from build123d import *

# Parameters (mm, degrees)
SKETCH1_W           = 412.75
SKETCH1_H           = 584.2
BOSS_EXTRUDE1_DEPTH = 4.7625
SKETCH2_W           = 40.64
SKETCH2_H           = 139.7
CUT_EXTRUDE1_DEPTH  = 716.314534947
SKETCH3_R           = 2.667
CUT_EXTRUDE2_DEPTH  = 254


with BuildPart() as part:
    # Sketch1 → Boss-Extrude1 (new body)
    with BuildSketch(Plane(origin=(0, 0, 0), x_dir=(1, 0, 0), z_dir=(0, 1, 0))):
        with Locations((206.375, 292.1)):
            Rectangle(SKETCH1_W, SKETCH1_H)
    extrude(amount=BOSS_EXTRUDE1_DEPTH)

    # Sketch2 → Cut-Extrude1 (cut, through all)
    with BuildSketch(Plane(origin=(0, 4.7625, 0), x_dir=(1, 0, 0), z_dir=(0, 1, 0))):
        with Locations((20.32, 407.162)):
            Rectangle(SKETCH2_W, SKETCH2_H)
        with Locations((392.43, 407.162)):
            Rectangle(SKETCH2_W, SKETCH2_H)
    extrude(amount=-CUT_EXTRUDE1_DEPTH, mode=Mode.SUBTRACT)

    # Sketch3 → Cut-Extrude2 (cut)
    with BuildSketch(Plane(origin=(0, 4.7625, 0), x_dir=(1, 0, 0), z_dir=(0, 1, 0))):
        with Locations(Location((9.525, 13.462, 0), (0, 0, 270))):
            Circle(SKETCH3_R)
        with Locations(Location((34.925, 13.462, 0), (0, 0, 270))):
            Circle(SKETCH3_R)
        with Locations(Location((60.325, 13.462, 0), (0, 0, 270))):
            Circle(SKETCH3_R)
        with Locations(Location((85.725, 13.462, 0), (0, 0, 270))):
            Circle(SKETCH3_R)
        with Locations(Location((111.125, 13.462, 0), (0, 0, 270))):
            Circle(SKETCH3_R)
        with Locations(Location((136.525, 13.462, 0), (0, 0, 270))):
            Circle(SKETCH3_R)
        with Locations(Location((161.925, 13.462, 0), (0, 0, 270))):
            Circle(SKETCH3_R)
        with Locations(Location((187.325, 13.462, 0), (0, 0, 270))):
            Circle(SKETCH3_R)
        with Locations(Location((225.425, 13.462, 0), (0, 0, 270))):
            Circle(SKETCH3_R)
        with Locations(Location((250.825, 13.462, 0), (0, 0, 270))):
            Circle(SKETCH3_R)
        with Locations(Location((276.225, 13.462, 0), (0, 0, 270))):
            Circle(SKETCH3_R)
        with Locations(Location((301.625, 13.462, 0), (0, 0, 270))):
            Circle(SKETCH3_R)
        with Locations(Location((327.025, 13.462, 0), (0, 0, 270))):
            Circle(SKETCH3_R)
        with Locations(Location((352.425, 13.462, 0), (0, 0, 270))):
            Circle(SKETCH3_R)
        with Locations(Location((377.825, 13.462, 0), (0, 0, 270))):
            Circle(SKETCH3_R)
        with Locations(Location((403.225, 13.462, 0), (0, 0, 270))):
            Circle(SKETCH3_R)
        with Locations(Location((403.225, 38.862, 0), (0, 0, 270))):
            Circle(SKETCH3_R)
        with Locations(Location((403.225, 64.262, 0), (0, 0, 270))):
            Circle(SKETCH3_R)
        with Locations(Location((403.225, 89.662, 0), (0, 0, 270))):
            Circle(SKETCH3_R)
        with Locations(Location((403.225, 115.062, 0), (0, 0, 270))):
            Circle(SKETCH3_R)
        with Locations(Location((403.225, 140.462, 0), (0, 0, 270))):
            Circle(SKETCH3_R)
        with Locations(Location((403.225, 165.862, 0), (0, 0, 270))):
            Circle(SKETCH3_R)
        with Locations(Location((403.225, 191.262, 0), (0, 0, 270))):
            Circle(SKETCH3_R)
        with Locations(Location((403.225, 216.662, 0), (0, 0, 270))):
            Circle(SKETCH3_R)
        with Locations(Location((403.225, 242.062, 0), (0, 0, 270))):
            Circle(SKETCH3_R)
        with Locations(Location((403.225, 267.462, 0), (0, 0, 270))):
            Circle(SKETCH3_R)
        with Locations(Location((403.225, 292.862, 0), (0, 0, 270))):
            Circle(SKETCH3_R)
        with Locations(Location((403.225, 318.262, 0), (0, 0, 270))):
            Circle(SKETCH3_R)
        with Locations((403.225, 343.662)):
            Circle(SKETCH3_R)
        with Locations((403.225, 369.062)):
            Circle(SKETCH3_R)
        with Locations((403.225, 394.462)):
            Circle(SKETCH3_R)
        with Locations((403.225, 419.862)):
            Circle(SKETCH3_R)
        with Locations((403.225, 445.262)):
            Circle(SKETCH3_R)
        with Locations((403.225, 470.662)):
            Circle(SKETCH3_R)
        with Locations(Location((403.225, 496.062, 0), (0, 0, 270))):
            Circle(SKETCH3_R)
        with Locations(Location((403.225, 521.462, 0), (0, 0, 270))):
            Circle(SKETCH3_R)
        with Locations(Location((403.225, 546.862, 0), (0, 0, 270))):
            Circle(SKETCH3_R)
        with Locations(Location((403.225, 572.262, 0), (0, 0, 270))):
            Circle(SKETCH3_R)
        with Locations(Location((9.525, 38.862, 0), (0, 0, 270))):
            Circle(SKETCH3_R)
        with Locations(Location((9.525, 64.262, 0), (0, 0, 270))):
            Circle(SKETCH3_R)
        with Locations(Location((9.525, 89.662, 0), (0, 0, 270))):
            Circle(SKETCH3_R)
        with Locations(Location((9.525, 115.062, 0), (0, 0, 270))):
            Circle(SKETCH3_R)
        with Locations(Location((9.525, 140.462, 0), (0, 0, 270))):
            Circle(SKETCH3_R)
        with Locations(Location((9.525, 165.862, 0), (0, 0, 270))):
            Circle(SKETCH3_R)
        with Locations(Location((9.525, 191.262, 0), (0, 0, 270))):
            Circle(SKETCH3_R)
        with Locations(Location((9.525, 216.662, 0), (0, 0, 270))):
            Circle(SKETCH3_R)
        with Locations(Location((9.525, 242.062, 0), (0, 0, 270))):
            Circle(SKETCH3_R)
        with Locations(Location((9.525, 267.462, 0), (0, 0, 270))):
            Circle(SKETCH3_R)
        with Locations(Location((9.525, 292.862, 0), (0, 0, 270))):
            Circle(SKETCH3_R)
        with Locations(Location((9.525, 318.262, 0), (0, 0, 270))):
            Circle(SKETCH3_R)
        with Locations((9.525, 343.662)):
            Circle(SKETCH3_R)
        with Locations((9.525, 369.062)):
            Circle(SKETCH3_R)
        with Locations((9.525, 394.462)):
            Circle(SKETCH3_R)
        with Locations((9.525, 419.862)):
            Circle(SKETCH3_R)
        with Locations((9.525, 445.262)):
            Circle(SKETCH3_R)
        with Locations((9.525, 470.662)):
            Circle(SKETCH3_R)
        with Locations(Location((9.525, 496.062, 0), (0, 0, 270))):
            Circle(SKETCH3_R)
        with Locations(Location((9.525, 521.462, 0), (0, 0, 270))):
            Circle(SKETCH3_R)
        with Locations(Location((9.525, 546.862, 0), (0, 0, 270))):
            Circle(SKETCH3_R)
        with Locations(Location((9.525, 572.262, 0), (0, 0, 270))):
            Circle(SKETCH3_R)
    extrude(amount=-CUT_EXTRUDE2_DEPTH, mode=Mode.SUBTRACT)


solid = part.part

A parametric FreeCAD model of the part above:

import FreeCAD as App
import Part
import Sketcher
Q = App.Units.Quantity

doc = App.newDocument("Part")
params = doc.addObject("Spreadsheet::Sheet", "Params")
for row, (alias, value) in enumerate([
    ("sketch1_height", "23 in"),
    ("sketch1_width", "16.25 in"),
    ("pad1_length", "0.1875 in"),
    ("sketch2_width", "1.6 in"),
    ("sketch2_height", "5.5 in"),
    ("sketch3_diameter", "0.21 in"),
    ("pocket2_length", "10 in"),
], start=1):
    params.set(f"A{row}", alias)
    params.set(f"B{row}", "=" + value)
    params.setAlias(f"B{row}", alias)

body = doc.addObject("PartDesign::Body", "Body")

sketch1 = doc.addObject("Sketcher::SketchObject", "Sketch")
body.addObject(sketch1)
sketch1.AttachmentSupport = (doc.XZ_Plane, [""])
sketch1.MapMode = "FlatFace"
sketch1.addGeometry([
    Part.LineSegment(App.Vector(0, -584, 0), App.Vector(0, 0, 0)),
    Part.LineSegment(App.Vector(0, 0, 0), App.Vector(413, 0, 0)),
    Part.LineSegment(App.Vector(413, 0, 0), App.Vector(413, -584, 0)),
    Part.LineSegment(App.Vector(413, -584, 0), App.Vector(0, -584, 0)),
], False)
sketch1.addConstraint([
    Sketcher.Constraint("Coincident", 0, 2, 1, 1),
    Sketcher.Constraint("Coincident", 1, 2, 2, 1),
    Sketcher.Constraint("Coincident", 2, 2, 3, 1),
    Sketcher.Constraint("Coincident", 3, 2, 0, 1),
    Sketcher.Constraint("Vertical", 0),
    Sketcher.Constraint("Horizontal", 1),
    Sketcher.Constraint("Vertical", 2),
    Sketcher.Constraint("Horizontal", 3),
    Sketcher.Constraint("Coincident", 0, 2, -1, 1),
    Sketcher.Constraint("DistanceY", 0, 1, 0, 2, Q("23 in")),
    Sketcher.Constraint("DistanceX", 1, 1, 1, 2, Q("16.25 in")),
])
sketch1.setExpression("Constraints[9]", "Params.sketch1_height")
sketch1.setExpression("Constraints[10]", "Params.sketch1_width")
pad1 = doc.addObject("PartDesign::Pad", "Pad")
body.addObject(pad1)
pad1.Profile = sketch1
pad1.setExpression("Length", "Params.pad1_length")
pad1.Reversed = True

sketch2 = doc.addObject("Sketcher::SketchObject", "Sketch001")
body.addObject(sketch2)
sketch2.AttachmentSupport = (doc.XZ_Plane, [""])
sketch2.MapMode = "FlatFace"
sketch2.AttachmentOffset = App.Placement(App.Vector(0, 0, -0.1875 * 25.4), App.Rotation())
sketch2.addGeometry([
    Part.LineSegment(App.Vector(0, -477, 0), App.Vector(0, -337, 0)),
    Part.LineSegment(App.Vector(0, -337, 0), App.Vector(41, -337, 0)),
    Part.LineSegment(App.Vector(41, -337, 0), App.Vector(41, -477, 0)),
    Part.LineSegment(App.Vector(41, -477, 0), App.Vector(0, -477, 0)),
    Part.LineSegment(App.Vector(372, -477, 0), App.Vector(372, -337, 0)),
    Part.LineSegment(App.Vector(372, -337, 0), App.Vector(413, -337, 0)),
    Part.LineSegment(App.Vector(413, -337, 0), App.Vector(413, -477, 0)),
    Part.LineSegment(App.Vector(413, -477, 0), App.Vector(372, -477, 0)),
], False)
sketch2.addConstraint([
    Sketcher.Constraint("Coincident", 0, 2, 1, 1),
    Sketcher.Constraint("Coincident", 1, 2, 2, 1),
    Sketcher.Constraint("Coincident", 2, 2, 3, 1),
    Sketcher.Constraint("Coincident", 3, 2, 0, 1),
    Sketcher.Constraint("Coincident", 4, 2, 5, 1),
    Sketcher.Constraint("Coincident", 5, 2, 6, 1),
    Sketcher.Constraint("Coincident", 6, 2, 7, 1),
    Sketcher.Constraint("Coincident", 7, 2, 4, 1),
    Sketcher.Constraint("Vertical", 0),
    Sketcher.Constraint("Horizontal", 1),
    Sketcher.Constraint("Vertical", 2),
    Sketcher.Constraint("Horizontal", 3),
    Sketcher.Constraint("Vertical", 4),
    Sketcher.Constraint("Horizontal", 5),
    Sketcher.Constraint("Vertical", 6),
    Sketcher.Constraint("Horizontal", 7),
    Sketcher.Constraint("PointOnObject", 0, 2, -2),
    Sketcher.Constraint("Horizontal", 1, 2, 4, 2),
    Sketcher.Constraint("Horizontal", 3, 2, 6, 2),
    Sketcher.Constraint("Equal", 3, 5),
    Sketcher.Constraint("DistanceX", 1, 1, 1, 2, Q("1.6 in")),
    Sketcher.Constraint("DistanceY", 0, 1, 0, 2, Q("5.5 in")),
    Sketcher.Constraint("DistanceY", 0, 2, -1, 1, Q("13.28 in")),
    Sketcher.Constraint("DistanceX", -1, 1, 4, 2, Q("14.65 in")),
])
sketch2.setExpression("Constraints[20]", "Params.sketch2_width")
sketch2.setExpression("Constraints[21]", "Params.sketch2_height")
pocket1 = doc.addObject("PartDesign::Pocket", "Pocket")
body.addObject(pocket1)
pocket1.Profile = sketch2
pocket1.Type = "ThroughAll"
pocket1.Reversed = True

sketch3 = doc.addObject("Sketcher::SketchObject", "Sketch002")
body.addObject(sketch3)
sketch3.AttachmentSupport = (doc.XZ_Plane, [""])
sketch3.MapMode = "FlatFace"
sketch3.AttachmentOffset = App.Placement(App.Vector(0, 0, -0.1875 * 25.4), App.Rotation())
sketch3.addGeometry([
    Part.Circle(App.Vector(9.5, -13.5, 0), App.Vector(0, 0, 1), 2.7),
    Part.Circle(App.Vector(34.9, -13.5, 0), App.Vector(0, 0, 1), 2.7),
    Part.Circle(App.Vector(60.3, -13.5, 0), App.Vector(0, 0, 1), 2.7),
    Part.Circle(App.Vector(85.7, -13.5, 0), App.Vector(0, 0, 1), 2.7),
    Part.Circle(App.Vector(111.1, -13.5, 0), App.Vector(0, 0, 1), 2.7),
    Part.Circle(App.Vector(136.5, -13.5, 0), App.Vector(0, 0, 1), 2.7),
    Part.Circle(App.Vector(161.9, -13.5, 0), App.Vector(0, 0, 1), 2.7),
    Part.Circle(App.Vector(187.3, -13.5, 0), App.Vector(0, 0, 1), 2.7),
    Part.Circle(App.Vector(225.4, -13.5, 0), App.Vector(0, 0, 1), 2.7),
    Part.Circle(App.Vector(250.8, -13.5, 0), App.Vector(0, 0, 1), 2.7),
    Part.Circle(App.Vector(276.2, -13.5, 0), App.Vector(0, 0, 1), 2.7),
    Part.Circle(App.Vector(301.6, -13.5, 0), App.Vector(0, 0, 1), 2.7),
    Part.Circle(App.Vector(327, -13.5, 0), App.Vector(0, 0, 1), 2.7),
    Part.Circle(App.Vector(352.4, -13.5, 0), App.Vector(0, 0, 1), 2.7),
    Part.Circle(App.Vector(377.8, -13.5, 0), App.Vector(0, 0, 1), 2.7),
    Part.Circle(App.Vector(403.2, -13.5, 0), App.Vector(0, 0, 1), 2.7),
    Part.Circle(App.Vector(403.2, -38.9, 0), App.Vector(0, 0, 1), 2.7),
    Part.Circle(App.Vector(403.2, -64.3, 0), App.Vector(0, 0, 1), 2.7),
    Part.Circle(App.Vector(403.2, -89.7, 0), App.Vector(0, 0, 1), 2.7),
    Part.Circle(App.Vector(403.2, -115.1, 0), App.Vector(0, 0, 1), 2.7),
    Part.Circle(App.Vector(403.2, -140.5, 0), App.Vector(0, 0, 1), 2.7),
    Part.Circle(App.Vector(403.2, -165.9, 0), App.Vector(0, 0, 1), 2.7),
    Part.Circle(App.Vector(403.2, -191.3, 0), App.Vector(0, 0, 1), 2.7),
    Part.Circle(App.Vector(403.2, -216.7, 0), App.Vector(0, 0, 1), 2.7),
    Part.Circle(App.Vector(403.2, -242.1, 0), App.Vector(0, 0, 1), 2.7),
    Part.Circle(App.Vector(403.2, -267.5, 0), App.Vector(0, 0, 1), 2.7),
    Part.Circle(App.Vector(403.2, -292.9, 0), App.Vector(0, 0, 1), 2.7),
    Part.Circle(App.Vector(403.2, -318.3, 0), App.Vector(0, 0, 1), 2.7),
    Part.Circle(App.Vector(403.2, -343.7, 0), App.Vector(0, 0, 1), 2.7),
    Part.Circle(App.Vector(403.2, -369.1, 0), App.Vector(0, 0, 1), 2.7),
    Part.Circle(App.Vector(403.2, -394.5, 0), App.Vector(0, 0, 1), 2.7),
    Part.Circle(App.Vector(403.2, -419.9, 0), App.Vector(0, 0, 1), 2.7),
    Part.Circle(App.Vector(403.2, -445.3, 0), App.Vector(0, 0, 1), 2.7),
    Part.Circle(App.Vector(403.2, -470.7, 0), App.Vector(0, 0, 1), 2.7),
    Part.Circle(App.Vector(403.2, -496.1, 0), App.Vector(0, 0, 1), 2.7),
    Part.Circle(App.Vector(403.2, -521.5, 0), App.Vector(0, 0, 1), 2.7),
    Part.Circle(App.Vector(403.2, -546.9, 0), App.Vector(0, 0, 1), 2.7),
    Part.Circle(App.Vector(403.2, -572.3, 0), App.Vector(0, 0, 1), 2.7),
    Part.Circle(App.Vector(9.5, -38.9, 0), App.Vector(0, 0, 1), 2.7),
    Part.Circle(App.Vector(9.5, -64.3, 0), App.Vector(0, 0, 1), 2.7),
    Part.Circle(App.Vector(9.5, -89.7, 0), App.Vector(0, 0, 1), 2.7),
    Part.Circle(App.Vector(9.5, -115.1, 0), App.Vector(0, 0, 1), 2.7),
    Part.Circle(App.Vector(9.5, -140.5, 0), App.Vector(0, 0, 1), 2.7),
    Part.Circle(App.Vector(9.5, -165.9, 0), App.Vector(0, 0, 1), 2.7),
    Part.Circle(App.Vector(9.5, -191.3, 0), App.Vector(0, 0, 1), 2.7),
    Part.Circle(App.Vector(9.5, -216.7, 0), App.Vector(0, 0, 1), 2.7),
    Part.Circle(App.Vector(9.5, -242.1, 0), App.Vector(0, 0, 1), 2.7),
    Part.Circle(App.Vector(9.5, -267.5, 0), App.Vector(0, 0, 1), 2.7),
    Part.Circle(App.Vector(9.5, -292.9, 0), App.Vector(0, 0, 1), 2.7),
    Part.Circle(App.Vector(9.5, -318.3, 0), App.Vector(0, 0, 1), 2.7),
    Part.Circle(App.Vector(9.5, -343.7, 0), App.Vector(0, 0, 1), 2.7),
    Part.Circle(App.Vector(9.5, -369.1, 0), App.Vector(0, 0, 1), 2.7),
    Part.Circle(App.Vector(9.5, -394.5, 0), App.Vector(0, 0, 1), 2.7),
    Part.Circle(App.Vector(9.5, -419.9, 0), App.Vector(0, 0, 1), 2.7),
    Part.Circle(App.Vector(9.5, -445.3, 0), App.Vector(0, 0, 1), 2.7),
    Part.Circle(App.Vector(9.5, -470.7, 0), App.Vector(0, 0, 1), 2.7),
    Part.Circle(App.Vector(9.5, -496.1, 0), App.Vector(0, 0, 1), 2.7),
    Part.Circle(App.Vector(9.5, -521.5, 0), App.Vector(0, 0, 1), 2.7),
    Part.Circle(App.Vector(9.5, -546.9, 0), App.Vector(0, 0, 1), 2.7),
    Part.Circle(App.Vector(9.5, -572.3, 0), App.Vector(0, 0, 1), 2.7),
], False)
sketch3.addConstraint([
    Sketcher.Constraint("Equal", 0, 1),
    Sketcher.Constraint("Equal", 1, 2),
    Sketcher.Constraint("Equal", 2, 3),
    Sketcher.Constraint("Equal", 3, 4),
    Sketcher.Constraint("Equal", 4, 5),
    Sketcher.Constraint("Equal", 5, 6),
    Sketcher.Constraint("Equal", 6, 7),
    Sketcher.Constraint("Equal", 7, 8),
    Sketcher.Constraint("Equal", 8, 9),
    Sketcher.Constraint("Equal", 9, 10),
    Sketcher.Constraint("Equal", 10, 11),
    Sketcher.Constraint("Equal", 11, 12),
    Sketcher.Constraint("Equal", 12, 13),
    Sketcher.Constraint("Equal", 13, 14),
    Sketcher.Constraint("Equal", 14, 15),
    Sketcher.Constraint("Equal", 15, 16),
    Sketcher.Constraint("Equal", 16, 17),
    Sketcher.Constraint("Equal", 17, 18),
    Sketcher.Constraint("Equal", 18, 19),
    Sketcher.Constraint("Equal", 19, 20),
    Sketcher.Constraint("Equal", 20, 21),
    Sketcher.Constraint("Equal", 21, 22),
    Sketcher.Constraint("Equal", 22, 23),
    Sketcher.Constraint("Equal", 23, 24),
    Sketcher.Constraint("Equal", 24, 25),
    Sketcher.Constraint("Equal", 25, 26),
    Sketcher.Constraint("Equal", 26, 27),
    Sketcher.Constraint("Equal", 27, 28),
    Sketcher.Constraint("Equal", 28, 29),
    Sketcher.Constraint("Equal", 29, 30),
    Sketcher.Constraint("Equal", 30, 31),
    Sketcher.Constraint("Equal", 31, 32),
    Sketcher.Constraint("Equal", 32, 33),
    Sketcher.Constraint("Equal", 33, 34),
    Sketcher.Constraint("Equal", 34, 35),
    Sketcher.Constraint("Equal", 35, 36),
    Sketcher.Constraint("Equal", 36, 37),
    Sketcher.Constraint("Equal", 37, 38),
    Sketcher.Constraint("Equal", 38, 39),
    Sketcher.Constraint("Equal", 39, 40),
    Sketcher.Constraint("Equal", 40, 41),
    Sketcher.Constraint("Equal", 41, 42),
    Sketcher.Constraint("Equal", 42, 43),
    Sketcher.Constraint("Equal", 43, 44),
    Sketcher.Constraint("Equal", 44, 45),
    Sketcher.Constraint("Equal", 45, 46),
    Sketcher.Constraint("Equal", 46, 47),
    Sketcher.Constraint("Equal", 47, 48),
    Sketcher.Constraint("Equal", 48, 49),
    Sketcher.Constraint("Equal", 49, 50),
    Sketcher.Constraint("Equal", 50, 51),
    Sketcher.Constraint("Equal", 51, 52),
    Sketcher.Constraint("Equal", 52, 53),
    Sketcher.Constraint("Equal", 53, 54),
    Sketcher.Constraint("Equal", 54, 55),
    Sketcher.Constraint("Equal", 55, 56),
    Sketcher.Constraint("Equal", 56, 57),
    Sketcher.Constraint("Equal", 57, 58),
    Sketcher.Constraint("Equal", 58, 59),
    Sketcher.Constraint("Horizontal", 0, 3, 1, 3),
    Sketcher.Constraint("Horizontal", 1, 3, 2, 3),
    Sketcher.Constraint("Horizontal", 2, 3, 3, 3),
    Sketcher.Constraint("Horizontal", 3, 3, 4, 3),
    Sketcher.Constraint("Horizontal", 4, 3, 5, 3),
    Sketcher.Constraint("Horizontal", 5, 3, 6, 3),
    Sketcher.Constraint("Horizontal", 6, 3, 7, 3),
    Sketcher.Constraint("Horizontal", 7, 3, 8, 3),
    Sketcher.Constraint("Horizontal", 8, 3, 9, 3),
    Sketcher.Constraint("Horizontal", 9, 3, 10, 3),
    Sketcher.Constraint("Horizontal", 10, 3, 11, 3),
    Sketcher.Constraint("Horizontal", 11, 3, 12, 3),
    Sketcher.Constraint("Horizontal", 12, 3, 13, 3),
    Sketcher.Constraint("Horizontal", 13, 3, 14, 3),
    Sketcher.Constraint("Horizontal", 14, 3, 15, 3),
    Sketcher.Constraint("Horizontal", 16, 3, 38, 3),
    Sketcher.Constraint("Horizontal", 17, 3, 39, 3),
    Sketcher.Constraint("Horizontal", 18, 3, 40, 3),
    Sketcher.Constraint("Horizontal", 19, 3, 41, 3),
    Sketcher.Constraint("Horizontal", 20, 3, 42, 3),
    Sketcher.Constraint("Horizontal", 21, 3, 43, 3),
    Sketcher.Constraint("Horizontal", 22, 3, 44, 3),
    Sketcher.Constraint("Horizontal", 23, 3, 45, 3),
    Sketcher.Constraint("Horizontal", 24, 3, 46, 3),
    Sketcher.Constraint("Horizontal", 25, 3, 47, 3),
    Sketcher.Constraint("Horizontal", 26, 3, 48, 3),
    Sketcher.Constraint("Horizontal", 27, 3, 49, 3),
    Sketcher.Constraint("Horizontal", 28, 3, 50, 3),
    Sketcher.Constraint("Horizontal", 29, 3, 51, 3),
    Sketcher.Constraint("Horizontal", 30, 3, 52, 3),
    Sketcher.Constraint("Horizontal", 31, 3, 53, 3),
    Sketcher.Constraint("Horizontal", 32, 3, 54, 3),
    Sketcher.Constraint("Horizontal", 33, 3, 55, 3),
    Sketcher.Constraint("Horizontal", 34, 3, 56, 3),
    Sketcher.Constraint("Horizontal", 35, 3, 57, 3),
    Sketcher.Constraint("Horizontal", 36, 3, 58, 3),
    Sketcher.Constraint("Horizontal", 37, 3, 59, 3),
    Sketcher.Constraint("Vertical", 15, 3, 16, 3),
    Sketcher.Constraint("Vertical", 16, 3, 17, 3),
    Sketcher.Constraint("Vertical", 17, 3, 18, 3),
    Sketcher.Constraint("Vertical", 18, 3, 19, 3),
    Sketcher.Constraint("Vertical", 19, 3, 20, 3),
    Sketcher.Constraint("Vertical", 20, 3, 21, 3),
    Sketcher.Constraint("Vertical", 21, 3, 22, 3),
    Sketcher.Constraint("Vertical", 22, 3, 23, 3),
    Sketcher.Constraint("Vertical", 23, 3, 24, 3),
    Sketcher.Constraint("Vertical", 24, 3, 25, 3),
    Sketcher.Constraint("Vertical", 25, 3, 26, 3),
    Sketcher.Constraint("Vertical", 26, 3, 27, 3),
    Sketcher.Constraint("Vertical", 27, 3, 28, 3),
    Sketcher.Constraint("Vertical", 28, 3, 29, 3),
    Sketcher.Constraint("Vertical", 29, 3, 30, 3),
    Sketcher.Constraint("Vertical", 30, 3, 31, 3),
    Sketcher.Constraint("Vertical", 31, 3, 32, 3),
    Sketcher.Constraint("Vertical", 32, 3, 33, 3),
    Sketcher.Constraint("Vertical", 33, 3, 34, 3),
    Sketcher.Constraint("Vertical", 34, 3, 35, 3),
    Sketcher.Constraint("Vertical", 35, 3, 36, 3),
    Sketcher.Constraint("Vertical", 36, 3, 37, 3),
    Sketcher.Constraint("Vertical", 0, 3, 38, 3),
    Sketcher.Constraint("Vertical", 38, 3, 39, 3),
    Sketcher.Constraint("Vertical", 39, 3, 40, 3),
    Sketcher.Constraint("Vertical", 40, 3, 41, 3),
    Sketcher.Constraint("Vertical", 41, 3, 42, 3),
    Sketcher.Constraint("Vertical", 42, 3, 43, 3),
    Sketcher.Constraint("Vertical", 43, 3, 44, 3),
    Sketcher.Constraint("Vertical", 44, 3, 45, 3),
    Sketcher.Constraint("Vertical", 45, 3, 46, 3),
    Sketcher.Constraint("Vertical", 46, 3, 47, 3),
    Sketcher.Constraint("Vertical", 47, 3, 48, 3),
    Sketcher.Constraint("Vertical", 48, 3, 49, 3),
    Sketcher.Constraint("Vertical", 49, 3, 50, 3),
    Sketcher.Constraint("Vertical", 50, 3, 51, 3),
    Sketcher.Constraint("Vertical", 51, 3, 52, 3),
    Sketcher.Constraint("Vertical", 52, 3, 53, 3),
    Sketcher.Constraint("Vertical", 53, 3, 54, 3),
    Sketcher.Constraint("Vertical", 54, 3, 55, 3),
    Sketcher.Constraint("Vertical", 55, 3, 56, 3),
    Sketcher.Constraint("Vertical", 56, 3, 57, 3),
    Sketcher.Constraint("Vertical", 57, 3, 58, 3),
    Sketcher.Constraint("Vertical", 58, 3, 59, 3),
    Sketcher.Constraint("Diameter", 0, Q("0.21 in")),
    Sketcher.Constraint("DistanceX", 0, 3, 1, 3, Q("1 in")),
    Sketcher.Constraint("DistanceX", 1, 3, 2, 3, Q("1 in")),
    Sketcher.Constraint("DistanceX", 2, 3, 3, 3, Q("1 in")),
    Sketcher.Constraint("DistanceX", 3, 3, 4, 3, Q("1 in")),
    Sketcher.Constraint("DistanceX", 4, 3, 5, 3, Q("1 in")),
    Sketcher.Constraint("DistanceX", 5, 3, 6, 3, Q("1 in")),
    Sketcher.Constraint("DistanceX", 6, 3, 7, 3, Q("1 in")),
    Sketcher.Constraint("DistanceX", 8, 3, 9, 3, Q("1 in")),
    Sketcher.Constraint("DistanceX", 9, 3, 10, 3, Q("1 in")),
    Sketcher.Constraint("DistanceX", 10, 3, 11, 3, Q("1 in")),
    Sketcher.Constraint("DistanceX", 11, 3, 12, 3, Q("1 in")),
    Sketcher.Constraint("DistanceX", 12, 3, 13, 3, Q("1 in")),
    Sketcher.Constraint("DistanceX", 13, 3, 14, 3, Q("1 in")),
    Sketcher.Constraint("DistanceX", 14, 3, 15, 3, Q("1 in")),
    Sketcher.Constraint("DistanceY", 16, 3, 15, 3, Q("1 in")),
    Sketcher.Constraint("DistanceY", 17, 3, 16, 3, Q("1 in")),
    Sketcher.Constraint("DistanceY", 18, 3, 17, 3, Q("1 in")),
    Sketcher.Constraint("DistanceY", 19, 3, 18, 3, Q("1 in")),
    Sketcher.Constraint("DistanceY", 20, 3, 19, 3, Q("1 in")),
    Sketcher.Constraint("DistanceY", 21, 3, 20, 3, Q("1 in")),
    Sketcher.Constraint("DistanceY", 22, 3, 21, 3, Q("1 in")),
    Sketcher.Constraint("DistanceY", 23, 3, 22, 3, Q("1 in")),
    Sketcher.Constraint("DistanceY", 24, 3, 23, 3, Q("1 in")),
    Sketcher.Constraint("DistanceY", 25, 3, 24, 3, Q("1 in")),
    Sketcher.Constraint("DistanceY", 26, 3, 25, 3, Q("1 in")),
    Sketcher.Constraint("DistanceY", 27, 3, 26, 3, Q("1 in")),
    Sketcher.Constraint("DistanceY", 28, 3, 27, 3, Q("1 in")),
    Sketcher.Constraint("DistanceY", 29, 3, 28, 3, Q("1 in")),
    Sketcher.Constraint("DistanceY", 30, 3, 29, 3, Q("1 in")),
    Sketcher.Constraint("DistanceY", 31, 3, 30, 3, Q("1 in")),
    Sketcher.Constraint("DistanceY", 32, 3, 31, 3, Q("1 in")),
    Sketcher.Constraint("DistanceY", 33, 3, 32, 3, Q("1 in")),
    Sketcher.Constraint("DistanceY", 34, 3, 33, 3, Q("1 in")),
    Sketcher.Constraint("DistanceY", 35, 3, 34, 3, Q("1 in")),
    Sketcher.Constraint("DistanceY", 36, 3, 35, 3, Q("1 in")),
    Sketcher.Constraint("DistanceY", 37, 3, 36, 3, Q("1 in")),
    Sketcher.Constraint("DistanceX", 7, 3, 8, 3, Q("1.5 in")),
    Sketcher.Constraint("DistanceY", 0, 3, -1, 1, Q("0.53 in")),
    Sketcher.Constraint("DistanceX", -1, 1, 0, 3, Q("0.375 in")),
])
sketch3.setExpression("Constraints[140]", "Params.sketch3_diameter")
pocket2 = doc.addObject("PartDesign::Pocket", "Pocket001")
body.addObject(pocket2)
pocket2.Profile = sketch3
pocket2.setExpression("Length", "Params.pocket2_length")
pocket2.Reversed = True

doc.recompute()
